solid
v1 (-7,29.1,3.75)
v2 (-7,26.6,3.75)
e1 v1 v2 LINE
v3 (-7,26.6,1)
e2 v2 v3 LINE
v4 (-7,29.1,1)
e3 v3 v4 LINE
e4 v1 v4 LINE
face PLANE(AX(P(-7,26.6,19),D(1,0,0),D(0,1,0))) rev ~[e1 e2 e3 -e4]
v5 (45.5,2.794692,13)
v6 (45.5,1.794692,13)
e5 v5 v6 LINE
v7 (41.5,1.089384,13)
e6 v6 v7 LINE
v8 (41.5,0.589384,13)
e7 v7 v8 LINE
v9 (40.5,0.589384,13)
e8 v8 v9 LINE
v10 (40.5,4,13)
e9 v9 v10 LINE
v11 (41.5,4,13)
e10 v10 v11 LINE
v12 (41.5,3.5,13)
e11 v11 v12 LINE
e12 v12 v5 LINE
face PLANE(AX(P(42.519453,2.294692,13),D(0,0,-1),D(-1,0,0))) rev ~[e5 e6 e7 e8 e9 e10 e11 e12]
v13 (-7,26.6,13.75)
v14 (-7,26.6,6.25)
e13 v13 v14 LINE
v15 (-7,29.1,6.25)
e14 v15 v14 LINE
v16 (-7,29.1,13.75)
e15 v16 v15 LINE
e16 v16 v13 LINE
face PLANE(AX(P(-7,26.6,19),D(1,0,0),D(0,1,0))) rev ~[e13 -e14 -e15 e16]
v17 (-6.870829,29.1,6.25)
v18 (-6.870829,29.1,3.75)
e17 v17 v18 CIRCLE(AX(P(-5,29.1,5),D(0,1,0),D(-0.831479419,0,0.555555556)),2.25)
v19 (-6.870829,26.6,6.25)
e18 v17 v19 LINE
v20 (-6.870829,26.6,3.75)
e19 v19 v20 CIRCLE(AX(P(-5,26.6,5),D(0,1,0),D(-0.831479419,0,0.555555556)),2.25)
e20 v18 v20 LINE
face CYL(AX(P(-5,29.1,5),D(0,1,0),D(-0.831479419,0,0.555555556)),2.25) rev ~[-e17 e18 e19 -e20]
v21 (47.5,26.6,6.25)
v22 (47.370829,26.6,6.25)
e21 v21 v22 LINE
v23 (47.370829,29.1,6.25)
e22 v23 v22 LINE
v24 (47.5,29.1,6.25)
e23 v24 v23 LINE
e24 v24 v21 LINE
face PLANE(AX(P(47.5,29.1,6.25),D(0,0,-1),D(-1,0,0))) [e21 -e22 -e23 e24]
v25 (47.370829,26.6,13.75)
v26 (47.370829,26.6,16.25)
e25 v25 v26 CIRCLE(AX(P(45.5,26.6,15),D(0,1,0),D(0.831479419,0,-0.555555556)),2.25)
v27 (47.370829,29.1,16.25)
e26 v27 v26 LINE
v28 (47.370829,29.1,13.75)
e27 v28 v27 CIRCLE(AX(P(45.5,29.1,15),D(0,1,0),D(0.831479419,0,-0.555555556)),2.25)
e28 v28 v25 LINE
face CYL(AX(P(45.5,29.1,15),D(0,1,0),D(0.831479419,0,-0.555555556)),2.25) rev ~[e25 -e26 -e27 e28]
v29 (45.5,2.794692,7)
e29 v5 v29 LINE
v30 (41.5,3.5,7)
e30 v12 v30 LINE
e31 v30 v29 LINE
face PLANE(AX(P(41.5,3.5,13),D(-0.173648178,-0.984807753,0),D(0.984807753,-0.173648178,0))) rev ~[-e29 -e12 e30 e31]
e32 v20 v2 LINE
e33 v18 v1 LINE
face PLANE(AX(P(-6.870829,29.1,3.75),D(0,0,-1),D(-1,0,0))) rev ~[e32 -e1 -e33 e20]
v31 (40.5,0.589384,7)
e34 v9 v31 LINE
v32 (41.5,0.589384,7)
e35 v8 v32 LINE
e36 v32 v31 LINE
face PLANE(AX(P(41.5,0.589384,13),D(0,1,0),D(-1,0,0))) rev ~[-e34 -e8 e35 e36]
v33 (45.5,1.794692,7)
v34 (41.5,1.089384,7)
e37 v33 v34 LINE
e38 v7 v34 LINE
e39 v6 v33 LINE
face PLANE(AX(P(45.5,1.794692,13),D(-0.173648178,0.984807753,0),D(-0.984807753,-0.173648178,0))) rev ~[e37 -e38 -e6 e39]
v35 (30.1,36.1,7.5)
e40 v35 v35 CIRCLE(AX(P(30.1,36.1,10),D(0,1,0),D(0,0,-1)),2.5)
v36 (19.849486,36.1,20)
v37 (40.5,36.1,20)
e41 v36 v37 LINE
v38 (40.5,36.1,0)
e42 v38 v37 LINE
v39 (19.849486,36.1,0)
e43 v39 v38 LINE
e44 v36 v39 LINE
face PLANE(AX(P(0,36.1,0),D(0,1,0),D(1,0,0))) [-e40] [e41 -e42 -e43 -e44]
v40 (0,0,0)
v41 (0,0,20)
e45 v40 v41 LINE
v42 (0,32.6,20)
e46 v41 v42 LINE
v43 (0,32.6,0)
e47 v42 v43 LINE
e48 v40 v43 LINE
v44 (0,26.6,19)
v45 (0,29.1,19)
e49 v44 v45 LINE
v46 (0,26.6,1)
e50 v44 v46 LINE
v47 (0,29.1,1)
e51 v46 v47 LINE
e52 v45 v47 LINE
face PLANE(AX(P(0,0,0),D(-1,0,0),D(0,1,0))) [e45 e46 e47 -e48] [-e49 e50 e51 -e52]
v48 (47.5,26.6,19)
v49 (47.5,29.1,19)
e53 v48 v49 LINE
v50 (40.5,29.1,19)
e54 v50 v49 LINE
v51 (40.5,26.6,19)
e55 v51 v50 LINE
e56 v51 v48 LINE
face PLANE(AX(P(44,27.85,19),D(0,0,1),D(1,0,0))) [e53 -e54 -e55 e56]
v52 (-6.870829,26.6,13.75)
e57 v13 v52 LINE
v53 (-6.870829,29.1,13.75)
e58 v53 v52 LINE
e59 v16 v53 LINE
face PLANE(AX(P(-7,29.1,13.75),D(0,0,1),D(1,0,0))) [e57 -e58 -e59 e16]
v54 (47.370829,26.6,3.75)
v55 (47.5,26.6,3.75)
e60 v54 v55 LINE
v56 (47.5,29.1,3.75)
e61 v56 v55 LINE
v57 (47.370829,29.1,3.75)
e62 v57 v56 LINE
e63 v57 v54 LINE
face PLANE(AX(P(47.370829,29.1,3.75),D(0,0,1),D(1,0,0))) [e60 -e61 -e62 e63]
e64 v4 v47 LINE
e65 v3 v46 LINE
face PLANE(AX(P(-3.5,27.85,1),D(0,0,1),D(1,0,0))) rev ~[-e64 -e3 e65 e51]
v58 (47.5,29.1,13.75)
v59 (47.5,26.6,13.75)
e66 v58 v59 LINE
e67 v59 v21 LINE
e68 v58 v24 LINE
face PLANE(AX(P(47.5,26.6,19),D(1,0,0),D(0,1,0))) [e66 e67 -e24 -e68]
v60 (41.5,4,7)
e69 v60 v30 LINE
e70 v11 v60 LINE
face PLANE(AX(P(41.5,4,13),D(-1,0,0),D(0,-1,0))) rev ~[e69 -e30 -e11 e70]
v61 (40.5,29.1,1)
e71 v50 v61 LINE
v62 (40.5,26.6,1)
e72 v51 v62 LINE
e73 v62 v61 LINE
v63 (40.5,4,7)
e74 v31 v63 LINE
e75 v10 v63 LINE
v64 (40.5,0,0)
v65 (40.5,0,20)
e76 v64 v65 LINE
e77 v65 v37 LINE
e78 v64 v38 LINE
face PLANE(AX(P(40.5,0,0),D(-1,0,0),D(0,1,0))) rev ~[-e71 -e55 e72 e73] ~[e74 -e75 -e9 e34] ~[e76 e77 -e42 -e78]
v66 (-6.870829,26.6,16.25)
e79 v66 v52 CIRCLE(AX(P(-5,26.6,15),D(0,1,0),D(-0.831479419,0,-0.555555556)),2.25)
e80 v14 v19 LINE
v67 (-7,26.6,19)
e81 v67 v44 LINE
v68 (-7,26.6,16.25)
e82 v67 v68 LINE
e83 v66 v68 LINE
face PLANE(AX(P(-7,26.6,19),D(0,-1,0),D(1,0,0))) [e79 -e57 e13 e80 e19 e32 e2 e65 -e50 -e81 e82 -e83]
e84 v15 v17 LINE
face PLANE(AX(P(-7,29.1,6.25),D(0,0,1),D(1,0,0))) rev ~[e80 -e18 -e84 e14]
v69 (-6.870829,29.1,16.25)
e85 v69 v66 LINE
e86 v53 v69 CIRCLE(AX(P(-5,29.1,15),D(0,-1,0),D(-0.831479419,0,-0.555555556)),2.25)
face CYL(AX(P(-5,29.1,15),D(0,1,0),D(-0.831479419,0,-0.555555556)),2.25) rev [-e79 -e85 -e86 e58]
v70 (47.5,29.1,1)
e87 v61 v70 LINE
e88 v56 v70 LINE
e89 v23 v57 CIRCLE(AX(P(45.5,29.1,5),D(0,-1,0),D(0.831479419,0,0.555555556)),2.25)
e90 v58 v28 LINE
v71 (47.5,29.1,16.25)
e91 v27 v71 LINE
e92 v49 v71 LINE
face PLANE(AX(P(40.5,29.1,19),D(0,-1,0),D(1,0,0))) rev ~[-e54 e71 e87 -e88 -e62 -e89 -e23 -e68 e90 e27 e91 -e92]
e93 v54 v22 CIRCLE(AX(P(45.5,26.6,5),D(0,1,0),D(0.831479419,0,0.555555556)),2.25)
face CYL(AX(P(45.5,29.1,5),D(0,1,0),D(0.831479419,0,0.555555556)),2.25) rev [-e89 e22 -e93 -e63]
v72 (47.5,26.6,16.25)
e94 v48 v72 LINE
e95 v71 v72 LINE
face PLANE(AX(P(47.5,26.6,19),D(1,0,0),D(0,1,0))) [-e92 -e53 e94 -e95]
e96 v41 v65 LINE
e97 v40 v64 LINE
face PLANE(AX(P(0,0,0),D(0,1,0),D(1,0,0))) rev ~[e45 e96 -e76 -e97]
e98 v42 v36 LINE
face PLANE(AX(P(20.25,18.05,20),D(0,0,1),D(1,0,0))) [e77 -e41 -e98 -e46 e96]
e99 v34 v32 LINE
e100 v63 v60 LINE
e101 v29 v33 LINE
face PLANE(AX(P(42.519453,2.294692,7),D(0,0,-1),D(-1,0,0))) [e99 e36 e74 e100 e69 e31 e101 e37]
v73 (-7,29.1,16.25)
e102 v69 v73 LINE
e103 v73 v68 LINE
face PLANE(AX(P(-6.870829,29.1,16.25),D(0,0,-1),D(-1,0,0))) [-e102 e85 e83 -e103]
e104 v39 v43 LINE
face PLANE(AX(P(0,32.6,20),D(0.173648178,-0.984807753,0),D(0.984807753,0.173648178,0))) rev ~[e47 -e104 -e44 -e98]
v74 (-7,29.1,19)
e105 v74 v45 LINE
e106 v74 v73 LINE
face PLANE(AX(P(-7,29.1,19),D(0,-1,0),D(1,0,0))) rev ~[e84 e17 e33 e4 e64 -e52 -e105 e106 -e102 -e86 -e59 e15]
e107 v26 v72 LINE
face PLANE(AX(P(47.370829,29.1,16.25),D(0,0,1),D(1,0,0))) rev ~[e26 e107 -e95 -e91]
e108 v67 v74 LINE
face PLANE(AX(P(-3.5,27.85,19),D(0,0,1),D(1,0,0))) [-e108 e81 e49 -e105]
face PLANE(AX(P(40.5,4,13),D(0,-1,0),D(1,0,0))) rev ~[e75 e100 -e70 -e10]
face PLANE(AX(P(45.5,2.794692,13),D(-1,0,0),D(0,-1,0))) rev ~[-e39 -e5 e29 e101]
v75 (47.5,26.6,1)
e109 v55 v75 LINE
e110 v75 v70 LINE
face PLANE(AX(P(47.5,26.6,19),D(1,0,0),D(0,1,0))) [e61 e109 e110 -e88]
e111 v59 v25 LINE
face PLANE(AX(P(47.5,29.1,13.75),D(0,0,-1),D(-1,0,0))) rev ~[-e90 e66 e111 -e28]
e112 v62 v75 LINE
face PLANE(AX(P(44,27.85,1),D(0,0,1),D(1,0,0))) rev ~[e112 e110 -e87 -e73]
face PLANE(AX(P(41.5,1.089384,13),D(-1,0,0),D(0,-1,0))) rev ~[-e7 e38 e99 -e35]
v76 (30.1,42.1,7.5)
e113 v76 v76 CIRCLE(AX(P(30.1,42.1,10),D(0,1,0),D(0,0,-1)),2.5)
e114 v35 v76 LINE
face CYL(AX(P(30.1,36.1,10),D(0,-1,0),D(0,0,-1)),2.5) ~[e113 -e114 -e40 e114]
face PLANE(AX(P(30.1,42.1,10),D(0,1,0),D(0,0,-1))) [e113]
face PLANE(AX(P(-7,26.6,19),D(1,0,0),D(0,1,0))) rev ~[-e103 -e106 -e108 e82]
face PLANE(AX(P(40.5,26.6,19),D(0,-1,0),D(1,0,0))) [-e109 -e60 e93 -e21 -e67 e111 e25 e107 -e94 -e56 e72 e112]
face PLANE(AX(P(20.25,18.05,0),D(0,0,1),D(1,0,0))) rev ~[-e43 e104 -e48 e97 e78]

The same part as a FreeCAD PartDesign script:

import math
import FreeCAD as App
import Part
import Sketcher
from FreeCAD import Vector
Q = App.Units.Quantity


def add_polygon(sketch, points):
    """Adds a closed chain of lines whose ends are joined by coincident constraints."""
    first, n = sketch.GeometryCount, len(points)
    for a, b in zip(points, points[1:] + points[:1]):
        sketch.addGeometry(Part.LineSegment(App.Vector(*a, 0), App.Vector(*b, 0)), False)
    for i in range(n):
        sketch.addConstraint(Sketcher.Constraint("Coincident", first + i, 2, first + (i + 1) % n, 1))

doc = App.newDocument("Part")
body = doc.addObject("PartDesign::Body", "Body")

sketch1 = body.newObject("Sketcher::SketchObject", "Sketch")
sketch1.AttachmentSupport = (doc.getObject("XY_Plane"), [""])
sketch1.MapMode = "FlatFace"
add_polygon(sketch1, [(0, 36), (0, 0), (40, 0), (40, 36)])
sketch1.addConstraint([
    Sketcher.Constraint("Vertical", 0),
    Sketcher.Constraint("Horizontal", 1),
    Sketcher.Constraint("Vertical", 2),
    Sketcher.Constraint("Horizontal", 3),
    Sketcher.Constraint("Coincident", 0, 2, -1, 1),
    Sketcher.Constraint("DistanceX", 1, 1, 1, 2, 40.5),
    Sketcher.Constraint("DistanceY", 0, 2, 0, 1, 36.1),
])
pad1 = body.newObject("PartDesign::Pad", "Pad")
pad1.Profile = sketch1
pad1.Length = 20

sketch2 = body.newObject("Sketcher::SketchObject", "Sketch001")
sketch2.AttachmentSupport = (doc.getObject("XY_Plane"), [""])
sketch2.MapMode = "FlatFace"
sketch2.AttachmentOffset = App.Placement(Vector(0, 0, 19), App.Rotation())
add_polygon(sketch2, [(-7, 29.1), (-7, 26.6), (0, 26.6), (0, 29.1)])
add_polygon(sketch2, [(40.5, 29.1), (40.5, 26.6), (47.5, 26.6), (47.5, 29.1)])
sketch2.addConstraint([
    Sketcher.Constraint("Vertical", 0),
    Sketcher.Constraint("Horizontal", 1),
    Sketcher.Constraint("Vertical", 2),
    Sketcher.Constraint("Horizontal", 3),
    Sketcher.Constraint("Vertical", 4),
    Sketcher.Constraint("Horizontal", 5),
    Sketcher.Constraint("Vertical", 6),
    Sketcher.Constraint("Horizontal", 7),
    Sketcher.Constraint("PointOnObject", 1, 2, -2),
    Sketcher.Constraint("Horizontal", 1, 2, 4, 2),
    Sketcher.Constraint("Horizontal", 3, 2, 6, 2),
    Sketcher.Constraint("Equal", 3, 5),
    Sketcher.Constraint("DistanceX", 1, 1, 1, 2, 7.0),
    Sketcher.Constraint("DistanceY", 0, 2, 0, 1, 2.5),
    Sketcher.Constraint("DistanceY", -1, 1, 0, 2, 26.6),
    Sketcher.Constraint("DistanceX", -1, 1, 4, 2, 40.5),
])
pad2 = body.newObject("PartDesign::Pad", "Pad001")
pad2.Profile = sketch2
pad2.Length = 18
pad2.Reversed = True

sketch3 = body.newObject("Sketcher::SketchObject", "Sketch002")
sketch3.AttachmentSupport = (doc.getObject("XZ_Plane"), [""])
sketch3.MapMode = "FlatFace"
sketch3.AttachmentOffset = App.Placement(Vector(0, 0, -29.1), App.Rotation())
sketch3.addGeometry([
    Part.LineSegment(Vector(-6.87, 3.75, 0), Vector(-7, 3.75, 0)),
    Part.LineSegment(Vector(-7, 3.75, 0), Vector(-7, 6.25, 0)),
    Part.LineSegment(Vector(-7, 6.25, 0), Vector(-6.87, 6.25, 0)),
    Part.ArcOfCircle(Part.Circle(Vector(-5, 5, 0), Vector(0, 0, 1), 2.25), math.radians(-146), math.radians(146)),
], False)
sketch3.addConstraint([
    Sketcher.Constraint("Coincident", 0, 2, 1, 1),
    Sketcher.Constraint("Coincident", 1, 2, 2, 1),
    Sketcher.Constraint("Coincident", 2, 2, 3, 2),
    Sketcher.Constraint("Coincident", 3, 1, 0, 1),
    Sketcher.Constraint("Horizontal", 0),
    Sketcher.Constraint("Vertical", 1),
    Sketcher.Constraint("Horizontal", 2),
    Sketcher.Constraint("Vertical", 2, 2, 3, 1),
    Sketcher.Constraint("Radius", 3, 2.25),
    Sketcher.Constraint("DistanceY", 1, 1, 1, 2, 2.5),
    Sketcher.Constraint("DistanceX", 3, 3, -1, 1, 5.0),
    Sketcher.Constraint("DistanceY", -1, 1, 3, 3, 5.0),
    Sketcher.Constraint("DistanceX", 0, 2, -1, 1, 7.0),
])
pocket1 = body.newObject("PartDesign::Pocket", "Pocket")
pocket1.Profile = sketch3
pocket1.Type = "UpToFirst"
pocket1.Reversed = True

sketch4 = body.newObject("Sketcher::SketchObject", "Sketch003")
sketch4.AttachmentSupport = (doc.getObject("XZ_Plane"), [""])
sketch4.MapMode = "FlatFace"
sketch4.AttachmentOffset = App.Placement(Vector(0, 0, -29.1), App.Rotation())
sketch4.addGeometry([
    Part.LineSegment(Vector(-6.87, 13.75, 0), Vector(-7, 13.75, 0)),
    Part.LineSegment(Vector(-7, 13.75, 0), Vector(-7, 16.25, 0)),
    Part.LineSegment(Vector(-7, 16.25, 0), Vector(-6.87, 16.25, 0)),
    Part.ArcOfCircle(Part.Circle(Vector(-5, 15, 0), Vector(0, 0, 1), 2.25), math.radians(-146), math.radians(146)),
], False)
sketch4.addConstraint([
    Sketcher.Constraint("Coincident", 0, 2, 1, 1),
    Sketcher.Constraint("Coincident", 1, 2, 2, 1),
    Sketcher.Constraint("Coincident", 2, 2, 3, 2),
    Sketcher.Constraint("Coincident", 3, 1, 0, 1),
    Sketcher.Constraint("Horizontal", 0),
    Sketcher.Constraint("Vertical", 1),
    Sketcher.Constraint("Horizontal", 2),
    Sketcher.Constraint("Vertical", 2, 2, 3, 1),
    Sketcher.Constraint("Radius", 3, 2.25),
    Sketcher.Constraint("DistanceY", 1, 1, 1, 2, 2.5),
    Sketcher.Constraint("DistanceX", 3, 3, -1, 1, 5.0),
    Sketcher.Constraint("DistanceY", -1, 1, 3, 3, 15.0),
    Sketcher.Constraint("DistanceX", 0, 2, -1, 1, 7.0),
])
pocket2 = body.newObject("PartDesign::Pocket", "Pocket001")
pocket2.Profile = sketch4
pocket2.Type = "UpToFirst"
pocket2.Reversed = True

sketch5 = body.newObject("Sketcher::SketchObject", "Sketch004")
sketch5.AttachmentSupport = (doc.getObject("XZ_Plane"), [""])
sketch5.MapMode = "FlatFace"
sketch5.AttachmentOffset = App.Placement(Vector(0, 0, -29.1), App.Rotation())
sketch5.addGeometry([
    Part.LineSegment(Vector(47.37, 16.25, 0), Vector(47.5, 16.25, 0)),
    Part.LineSegment(Vector(47.5, 16.25, 0), Vector(47.5, 13.75, 0)),
    Part.LineSegment(Vector(47.5, 13.75, 0), Vector(47.37, 13.75, 0)),
    Part.ArcOfCircle(Part.Circle(Vector(45.5, 15, 0), Vector(0, 0, 1), 2.25), math.radians(34), math.radians(326)),
], False)
sketch5.addConstraint([
    Sketcher.Constraint("Coincident", 0, 2, 1, 1),
    Sketcher.Constraint("Coincident", 1, 2, 2, 1),
    Sketcher.Constraint("Coincident", 2, 2, 3, 2),
    Sketcher.Constraint("Coincident", 3, 1, 0, 1),
    Sketcher.Constraint("Horizontal", 0),
    Sketcher.Constraint("Vertical", 1),
    Sketcher.Constraint("Horizontal", 2),
    Sketcher.Constraint("Vertical", 2, 2, 3, 1),
    Sketcher.Constraint("Radius", 3, 2.25),
    Sketcher.Constraint("DistanceY", 1, 2, 1, 1, 2.5),
    Sketcher.Constraint("DistanceY", -1, 1, 3, 3, 15.0),
    Sketcher.Constraint("DistanceX", 3, 3, 0, 2, 2.0),
    Sketcher.Constraint("DistanceX", -1, 1, 3, 3, 45.5),
])
pocket3 = body.newObject("PartDesign::Pocket", "Pocket002")
pocket3.Profile = sketch5
pocket3.Type = "UpToFirst"
pocket3.Reversed = True

sketch6 = body.newObject("Sketcher::SketchObject", "Sketch005")
sketch6.AttachmentSupport = (doc.getObject("XZ_Plane"), [""])
sketch6.MapMode = "FlatFace"
sketch6.AttachmentOffset = App.Placement(Vector(0, 0, -29.1), App.Rotation())
sketch6.addGeometry([
    Part.LineSegment(Vector(47.37, 6.25, 0), Vector(47.5, 6.25, 0)),
    Part.LineSegment(Vector(47.5, 6.25, 0), Vector(47.5, 3.75, 0)),
    Part.LineSegment(Vector(47.5, 3.75, 0), Vector(47.37, 3.75, 0)),
    Part.ArcOfCircle(Part.Circle(Vector(45.5, 5, 0), Vector(0, 0, 1), 2.25), math.radians(34), math.radians(326)),
], False)
sketch6.addConstraint([
    Sketcher.Constraint("Coincident", 0, 2, 1, 1),
    Sketcher.Constraint("Coincident", 1, 2, 2, 1),
    Sketcher.Constraint("Coincident", 2, 2, 3, 2),
    Sketcher.Constraint("Coincident", 3, 1, 0, 1),
    Sketcher.Constraint("Horizontal", 0),
    Sketcher.Constraint("Vertical", 1),
    Sketcher.Constraint("Horizontal", 2),
    Sketcher.Constraint("Vertical", 2, 2, 3, 1),
    Sketcher.Constraint("Radius", 3, 2.25),
    Sketcher.Constraint("DistanceY", 1, 2, 1, 1, 2.5),
    Sketcher.Constraint("DistanceY", -1, 1, 3, 3, 5.0),
    Sketcher.Constraint("DistanceX", 3, 3, 0, 2, 2.0),
    Sketcher.Constraint("DistanceX", -1, 1, 3, 3, 45.5),
])
pocket4 = body.newObject("PartDesign::Pocket", "Pocket003")
pocket4.Profile = sketch6
pocket4.Type = "UpToFirst"
pocket4.Reversed = True

sketch7 = body.newObject("Sketcher::SketchObject", "Sketch006")
sketch7.AttachmentSupport = (doc.getObject("XZ_Plane"), [""])
sketch7.MapMode = "FlatFace"
sketch7.AttachmentOffset = App.Placement(Vector(0, 0, -36.1), App.Rotation())
sketch7.addGeometry(Part.Circle(Vector(30.1, 10, 0), Vector(0, 0, 1), 2.5), False)
sketch7.addConstraint([
    Sketcher.Constraint("Diameter", 0, 5.0),
    Sketcher.Constraint("DistanceY", -1, 1, 0, 3, 10.0),
    Sketcher.Constraint("DistanceX", -1, 1, 0, 3, 30.1),
])
pad3 = body.newObject("PartDesign::Pad", "Pad002")
pad3.Profile = sketch7
pad3.Length = 6
pad3.Reversed = True

sketch8 = body.newObject("Sketcher::SketchObject", "Sketch007")
sketch8.AttachmentSupport = (doc.getObject("XY_Plane"), [""])
sketch8.MapMode = "FlatFace"
sketch8.AttachmentOffset = App.Placement(Vector(0, 0, 13), App.Rotation())
add_polygon(sketch8, [(41.5, 4), (40.5, 4), (40.5, 0.6), (41.5, 0.6), (41.5, 1.1), (45.5, 1.8), (45.5, 2.8), (41.5, 3.5)])
sketch8.addConstraint([
    Sketcher.Constraint("Horizontal", 0),
    Sketcher.Constraint("Vertical", 1),
    Sketcher.Constraint("Horizontal", 2),
    Sketcher.Constraint("Vertical", 3),
    Sketcher.Constraint("Vertical", 5),
    Sketcher.Constraint("Vertical", 7),
    Sketcher.Constraint("Vertical", 3, 2, 6, 2),
    Sketcher.Constraint("Equal", 2, 5),
    Sketcher.Constraint("Equal", 3, 7),
    Sketcher.Constraint("Equal", 4, 6),
    Sketcher.Constraint("DistanceX", 0, 2, 0, 1, 1.0),
    Sketcher.Constraint("Angle", 4, Q("10 deg")),
    Sketcher.Constraint("DistanceY", 3, 1, 3, 2, 0.5),
    Sketcher.Constraint("DistanceY", -1, 1, 0, 2, 4.0),
    Sketcher.Constraint("DistanceX", 3, 2, 4, 2, 4.0),
    Sketcher.Constraint("DistanceX", -1, 1, 0, 2, 40.5),
])
pad4 = body.newObject("PartDesign::Pad", "Pad003")
pad4.Profile = sketch8
pad4.Length = 6
pad4.Reversed = True

sketch9 = body.newObject("Sketcher::SketchObject", "Sketch008")
sketch9.AttachmentSupport = (doc.getObject("XY_Plane"), [""])
sketch9.MapMode = "FlatFace"
sketch9.AttachmentOffset = App.Placement(Vector(0, 0, 20), App.Rotation())
add_polygon(sketch9, [(0, 32.6), (19.8, 36.1), (0, 36.1)])
sketch9.addConstraint([
    Sketcher.Constraint("Horizontal", 1),
    Sketcher.Constraint("Vertical", 2),
    Sketcher.Constraint("PointOnObject", 1, 2, -2),
    Sketcher.Constraint("Angle", 0, Q("10 deg")),
    Sketcher.Constraint("DistanceY", 2, 2, 2, 1, 3.5),
    Sketcher.Constraint("DistanceY", -1, 1, 0, 2, 36.1),
])
pocket5 = body.newObject("PartDesign::Pocket", "Pocket004")
pocket5.Profile = sketch9
pocket5.Type = "UpToFirst"

doc.recompute()
